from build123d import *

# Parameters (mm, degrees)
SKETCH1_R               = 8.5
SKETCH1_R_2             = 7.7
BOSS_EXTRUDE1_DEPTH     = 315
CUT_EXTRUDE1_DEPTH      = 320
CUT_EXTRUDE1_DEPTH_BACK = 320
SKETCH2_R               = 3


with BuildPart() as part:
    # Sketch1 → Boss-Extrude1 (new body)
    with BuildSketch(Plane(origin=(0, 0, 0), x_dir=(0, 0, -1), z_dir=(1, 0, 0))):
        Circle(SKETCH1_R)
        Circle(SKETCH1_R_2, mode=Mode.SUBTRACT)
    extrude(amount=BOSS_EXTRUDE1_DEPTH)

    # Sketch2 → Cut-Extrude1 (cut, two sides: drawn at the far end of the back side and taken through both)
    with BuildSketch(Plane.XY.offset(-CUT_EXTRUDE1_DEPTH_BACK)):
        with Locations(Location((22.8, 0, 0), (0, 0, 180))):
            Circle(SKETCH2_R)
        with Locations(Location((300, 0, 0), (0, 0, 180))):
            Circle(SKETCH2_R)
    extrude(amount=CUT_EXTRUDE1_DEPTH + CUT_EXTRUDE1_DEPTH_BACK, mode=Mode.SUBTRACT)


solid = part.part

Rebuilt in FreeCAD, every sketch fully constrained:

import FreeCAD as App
import Part
import Sketcher

V = App.Vector
Q = App.Units.Quantity

doc = App.newDocument("Part")
body = doc.addObject("PartDesign::Body", "Body")

# Sketch on YZ plane
sketch1 = body.newObject("Sketcher::SketchObject", "Sketch")
sketch1.AttachmentSupport = (doc.getObject("YZ_Plane"), [""])
sketch1.MapMode = "FlatFace"
sketch1.addGeometry([
    Part.Circle(V(0, 0, 0), V(0, 0, 1), 8),
    Part.Circle(V(0, 0, 0), V(0, 0, 1), 8),
], False)
sketch1.addConstraint([
    Sketcher.Constraint("Coincident", 0, 3, -1, 1),
    Sketcher.Constraint("Coincident", 1, 3, -1, 1),
    Sketcher.Constraint("Diameter", 0, Q("17 mm")),
    Sketcher.Constraint("Diameter", 1, Q("15.4 mm")),
])
pad1 = body.newObject("PartDesign::Pad", "Pad")
pad1.Profile = sketch1
pad1.Length = 315

# Sketch on XY plane
sketch2 = body.newObject("Sketcher::SketchObject", "Sketch001")
sketch2.AttachmentSupport = (doc.getObject("XY_Plane"), [""])
sketch2.MapMode = "FlatFace"
sketch2.addGeometry([
    Part.Circle(V(22.8, 0, 0), V(0, 0, 1), 3),
    Part.Circle(V(300, 0, 0), V(0, 0, 1), 3),
], False)
sketch2.addConstraint([
    Sketcher.Constraint("Equal", 0, 1),
    Sketcher.Constraint("PointOnObject", 0, 3, -1),
    Sketcher.Constraint("PointOnObject", 1, 3, -1),
    Sketcher.Constraint("Diameter", 0, Q("6 mm")),
    Sketcher.Constraint("DistanceX", -1, 1, 1, 3, Q("300 mm")),
    Sketcher.Constraint("DistanceX", -1, 1, 0, 3, Q("22.8 mm")),
])
pocket1 = body.newObject("PartDesign::Pocket", "Pocket")
pocket1.Profile = sketch2
pocket1.Type = "ThroughAll"
pocket1.Midplane = True

doc.recompute()
